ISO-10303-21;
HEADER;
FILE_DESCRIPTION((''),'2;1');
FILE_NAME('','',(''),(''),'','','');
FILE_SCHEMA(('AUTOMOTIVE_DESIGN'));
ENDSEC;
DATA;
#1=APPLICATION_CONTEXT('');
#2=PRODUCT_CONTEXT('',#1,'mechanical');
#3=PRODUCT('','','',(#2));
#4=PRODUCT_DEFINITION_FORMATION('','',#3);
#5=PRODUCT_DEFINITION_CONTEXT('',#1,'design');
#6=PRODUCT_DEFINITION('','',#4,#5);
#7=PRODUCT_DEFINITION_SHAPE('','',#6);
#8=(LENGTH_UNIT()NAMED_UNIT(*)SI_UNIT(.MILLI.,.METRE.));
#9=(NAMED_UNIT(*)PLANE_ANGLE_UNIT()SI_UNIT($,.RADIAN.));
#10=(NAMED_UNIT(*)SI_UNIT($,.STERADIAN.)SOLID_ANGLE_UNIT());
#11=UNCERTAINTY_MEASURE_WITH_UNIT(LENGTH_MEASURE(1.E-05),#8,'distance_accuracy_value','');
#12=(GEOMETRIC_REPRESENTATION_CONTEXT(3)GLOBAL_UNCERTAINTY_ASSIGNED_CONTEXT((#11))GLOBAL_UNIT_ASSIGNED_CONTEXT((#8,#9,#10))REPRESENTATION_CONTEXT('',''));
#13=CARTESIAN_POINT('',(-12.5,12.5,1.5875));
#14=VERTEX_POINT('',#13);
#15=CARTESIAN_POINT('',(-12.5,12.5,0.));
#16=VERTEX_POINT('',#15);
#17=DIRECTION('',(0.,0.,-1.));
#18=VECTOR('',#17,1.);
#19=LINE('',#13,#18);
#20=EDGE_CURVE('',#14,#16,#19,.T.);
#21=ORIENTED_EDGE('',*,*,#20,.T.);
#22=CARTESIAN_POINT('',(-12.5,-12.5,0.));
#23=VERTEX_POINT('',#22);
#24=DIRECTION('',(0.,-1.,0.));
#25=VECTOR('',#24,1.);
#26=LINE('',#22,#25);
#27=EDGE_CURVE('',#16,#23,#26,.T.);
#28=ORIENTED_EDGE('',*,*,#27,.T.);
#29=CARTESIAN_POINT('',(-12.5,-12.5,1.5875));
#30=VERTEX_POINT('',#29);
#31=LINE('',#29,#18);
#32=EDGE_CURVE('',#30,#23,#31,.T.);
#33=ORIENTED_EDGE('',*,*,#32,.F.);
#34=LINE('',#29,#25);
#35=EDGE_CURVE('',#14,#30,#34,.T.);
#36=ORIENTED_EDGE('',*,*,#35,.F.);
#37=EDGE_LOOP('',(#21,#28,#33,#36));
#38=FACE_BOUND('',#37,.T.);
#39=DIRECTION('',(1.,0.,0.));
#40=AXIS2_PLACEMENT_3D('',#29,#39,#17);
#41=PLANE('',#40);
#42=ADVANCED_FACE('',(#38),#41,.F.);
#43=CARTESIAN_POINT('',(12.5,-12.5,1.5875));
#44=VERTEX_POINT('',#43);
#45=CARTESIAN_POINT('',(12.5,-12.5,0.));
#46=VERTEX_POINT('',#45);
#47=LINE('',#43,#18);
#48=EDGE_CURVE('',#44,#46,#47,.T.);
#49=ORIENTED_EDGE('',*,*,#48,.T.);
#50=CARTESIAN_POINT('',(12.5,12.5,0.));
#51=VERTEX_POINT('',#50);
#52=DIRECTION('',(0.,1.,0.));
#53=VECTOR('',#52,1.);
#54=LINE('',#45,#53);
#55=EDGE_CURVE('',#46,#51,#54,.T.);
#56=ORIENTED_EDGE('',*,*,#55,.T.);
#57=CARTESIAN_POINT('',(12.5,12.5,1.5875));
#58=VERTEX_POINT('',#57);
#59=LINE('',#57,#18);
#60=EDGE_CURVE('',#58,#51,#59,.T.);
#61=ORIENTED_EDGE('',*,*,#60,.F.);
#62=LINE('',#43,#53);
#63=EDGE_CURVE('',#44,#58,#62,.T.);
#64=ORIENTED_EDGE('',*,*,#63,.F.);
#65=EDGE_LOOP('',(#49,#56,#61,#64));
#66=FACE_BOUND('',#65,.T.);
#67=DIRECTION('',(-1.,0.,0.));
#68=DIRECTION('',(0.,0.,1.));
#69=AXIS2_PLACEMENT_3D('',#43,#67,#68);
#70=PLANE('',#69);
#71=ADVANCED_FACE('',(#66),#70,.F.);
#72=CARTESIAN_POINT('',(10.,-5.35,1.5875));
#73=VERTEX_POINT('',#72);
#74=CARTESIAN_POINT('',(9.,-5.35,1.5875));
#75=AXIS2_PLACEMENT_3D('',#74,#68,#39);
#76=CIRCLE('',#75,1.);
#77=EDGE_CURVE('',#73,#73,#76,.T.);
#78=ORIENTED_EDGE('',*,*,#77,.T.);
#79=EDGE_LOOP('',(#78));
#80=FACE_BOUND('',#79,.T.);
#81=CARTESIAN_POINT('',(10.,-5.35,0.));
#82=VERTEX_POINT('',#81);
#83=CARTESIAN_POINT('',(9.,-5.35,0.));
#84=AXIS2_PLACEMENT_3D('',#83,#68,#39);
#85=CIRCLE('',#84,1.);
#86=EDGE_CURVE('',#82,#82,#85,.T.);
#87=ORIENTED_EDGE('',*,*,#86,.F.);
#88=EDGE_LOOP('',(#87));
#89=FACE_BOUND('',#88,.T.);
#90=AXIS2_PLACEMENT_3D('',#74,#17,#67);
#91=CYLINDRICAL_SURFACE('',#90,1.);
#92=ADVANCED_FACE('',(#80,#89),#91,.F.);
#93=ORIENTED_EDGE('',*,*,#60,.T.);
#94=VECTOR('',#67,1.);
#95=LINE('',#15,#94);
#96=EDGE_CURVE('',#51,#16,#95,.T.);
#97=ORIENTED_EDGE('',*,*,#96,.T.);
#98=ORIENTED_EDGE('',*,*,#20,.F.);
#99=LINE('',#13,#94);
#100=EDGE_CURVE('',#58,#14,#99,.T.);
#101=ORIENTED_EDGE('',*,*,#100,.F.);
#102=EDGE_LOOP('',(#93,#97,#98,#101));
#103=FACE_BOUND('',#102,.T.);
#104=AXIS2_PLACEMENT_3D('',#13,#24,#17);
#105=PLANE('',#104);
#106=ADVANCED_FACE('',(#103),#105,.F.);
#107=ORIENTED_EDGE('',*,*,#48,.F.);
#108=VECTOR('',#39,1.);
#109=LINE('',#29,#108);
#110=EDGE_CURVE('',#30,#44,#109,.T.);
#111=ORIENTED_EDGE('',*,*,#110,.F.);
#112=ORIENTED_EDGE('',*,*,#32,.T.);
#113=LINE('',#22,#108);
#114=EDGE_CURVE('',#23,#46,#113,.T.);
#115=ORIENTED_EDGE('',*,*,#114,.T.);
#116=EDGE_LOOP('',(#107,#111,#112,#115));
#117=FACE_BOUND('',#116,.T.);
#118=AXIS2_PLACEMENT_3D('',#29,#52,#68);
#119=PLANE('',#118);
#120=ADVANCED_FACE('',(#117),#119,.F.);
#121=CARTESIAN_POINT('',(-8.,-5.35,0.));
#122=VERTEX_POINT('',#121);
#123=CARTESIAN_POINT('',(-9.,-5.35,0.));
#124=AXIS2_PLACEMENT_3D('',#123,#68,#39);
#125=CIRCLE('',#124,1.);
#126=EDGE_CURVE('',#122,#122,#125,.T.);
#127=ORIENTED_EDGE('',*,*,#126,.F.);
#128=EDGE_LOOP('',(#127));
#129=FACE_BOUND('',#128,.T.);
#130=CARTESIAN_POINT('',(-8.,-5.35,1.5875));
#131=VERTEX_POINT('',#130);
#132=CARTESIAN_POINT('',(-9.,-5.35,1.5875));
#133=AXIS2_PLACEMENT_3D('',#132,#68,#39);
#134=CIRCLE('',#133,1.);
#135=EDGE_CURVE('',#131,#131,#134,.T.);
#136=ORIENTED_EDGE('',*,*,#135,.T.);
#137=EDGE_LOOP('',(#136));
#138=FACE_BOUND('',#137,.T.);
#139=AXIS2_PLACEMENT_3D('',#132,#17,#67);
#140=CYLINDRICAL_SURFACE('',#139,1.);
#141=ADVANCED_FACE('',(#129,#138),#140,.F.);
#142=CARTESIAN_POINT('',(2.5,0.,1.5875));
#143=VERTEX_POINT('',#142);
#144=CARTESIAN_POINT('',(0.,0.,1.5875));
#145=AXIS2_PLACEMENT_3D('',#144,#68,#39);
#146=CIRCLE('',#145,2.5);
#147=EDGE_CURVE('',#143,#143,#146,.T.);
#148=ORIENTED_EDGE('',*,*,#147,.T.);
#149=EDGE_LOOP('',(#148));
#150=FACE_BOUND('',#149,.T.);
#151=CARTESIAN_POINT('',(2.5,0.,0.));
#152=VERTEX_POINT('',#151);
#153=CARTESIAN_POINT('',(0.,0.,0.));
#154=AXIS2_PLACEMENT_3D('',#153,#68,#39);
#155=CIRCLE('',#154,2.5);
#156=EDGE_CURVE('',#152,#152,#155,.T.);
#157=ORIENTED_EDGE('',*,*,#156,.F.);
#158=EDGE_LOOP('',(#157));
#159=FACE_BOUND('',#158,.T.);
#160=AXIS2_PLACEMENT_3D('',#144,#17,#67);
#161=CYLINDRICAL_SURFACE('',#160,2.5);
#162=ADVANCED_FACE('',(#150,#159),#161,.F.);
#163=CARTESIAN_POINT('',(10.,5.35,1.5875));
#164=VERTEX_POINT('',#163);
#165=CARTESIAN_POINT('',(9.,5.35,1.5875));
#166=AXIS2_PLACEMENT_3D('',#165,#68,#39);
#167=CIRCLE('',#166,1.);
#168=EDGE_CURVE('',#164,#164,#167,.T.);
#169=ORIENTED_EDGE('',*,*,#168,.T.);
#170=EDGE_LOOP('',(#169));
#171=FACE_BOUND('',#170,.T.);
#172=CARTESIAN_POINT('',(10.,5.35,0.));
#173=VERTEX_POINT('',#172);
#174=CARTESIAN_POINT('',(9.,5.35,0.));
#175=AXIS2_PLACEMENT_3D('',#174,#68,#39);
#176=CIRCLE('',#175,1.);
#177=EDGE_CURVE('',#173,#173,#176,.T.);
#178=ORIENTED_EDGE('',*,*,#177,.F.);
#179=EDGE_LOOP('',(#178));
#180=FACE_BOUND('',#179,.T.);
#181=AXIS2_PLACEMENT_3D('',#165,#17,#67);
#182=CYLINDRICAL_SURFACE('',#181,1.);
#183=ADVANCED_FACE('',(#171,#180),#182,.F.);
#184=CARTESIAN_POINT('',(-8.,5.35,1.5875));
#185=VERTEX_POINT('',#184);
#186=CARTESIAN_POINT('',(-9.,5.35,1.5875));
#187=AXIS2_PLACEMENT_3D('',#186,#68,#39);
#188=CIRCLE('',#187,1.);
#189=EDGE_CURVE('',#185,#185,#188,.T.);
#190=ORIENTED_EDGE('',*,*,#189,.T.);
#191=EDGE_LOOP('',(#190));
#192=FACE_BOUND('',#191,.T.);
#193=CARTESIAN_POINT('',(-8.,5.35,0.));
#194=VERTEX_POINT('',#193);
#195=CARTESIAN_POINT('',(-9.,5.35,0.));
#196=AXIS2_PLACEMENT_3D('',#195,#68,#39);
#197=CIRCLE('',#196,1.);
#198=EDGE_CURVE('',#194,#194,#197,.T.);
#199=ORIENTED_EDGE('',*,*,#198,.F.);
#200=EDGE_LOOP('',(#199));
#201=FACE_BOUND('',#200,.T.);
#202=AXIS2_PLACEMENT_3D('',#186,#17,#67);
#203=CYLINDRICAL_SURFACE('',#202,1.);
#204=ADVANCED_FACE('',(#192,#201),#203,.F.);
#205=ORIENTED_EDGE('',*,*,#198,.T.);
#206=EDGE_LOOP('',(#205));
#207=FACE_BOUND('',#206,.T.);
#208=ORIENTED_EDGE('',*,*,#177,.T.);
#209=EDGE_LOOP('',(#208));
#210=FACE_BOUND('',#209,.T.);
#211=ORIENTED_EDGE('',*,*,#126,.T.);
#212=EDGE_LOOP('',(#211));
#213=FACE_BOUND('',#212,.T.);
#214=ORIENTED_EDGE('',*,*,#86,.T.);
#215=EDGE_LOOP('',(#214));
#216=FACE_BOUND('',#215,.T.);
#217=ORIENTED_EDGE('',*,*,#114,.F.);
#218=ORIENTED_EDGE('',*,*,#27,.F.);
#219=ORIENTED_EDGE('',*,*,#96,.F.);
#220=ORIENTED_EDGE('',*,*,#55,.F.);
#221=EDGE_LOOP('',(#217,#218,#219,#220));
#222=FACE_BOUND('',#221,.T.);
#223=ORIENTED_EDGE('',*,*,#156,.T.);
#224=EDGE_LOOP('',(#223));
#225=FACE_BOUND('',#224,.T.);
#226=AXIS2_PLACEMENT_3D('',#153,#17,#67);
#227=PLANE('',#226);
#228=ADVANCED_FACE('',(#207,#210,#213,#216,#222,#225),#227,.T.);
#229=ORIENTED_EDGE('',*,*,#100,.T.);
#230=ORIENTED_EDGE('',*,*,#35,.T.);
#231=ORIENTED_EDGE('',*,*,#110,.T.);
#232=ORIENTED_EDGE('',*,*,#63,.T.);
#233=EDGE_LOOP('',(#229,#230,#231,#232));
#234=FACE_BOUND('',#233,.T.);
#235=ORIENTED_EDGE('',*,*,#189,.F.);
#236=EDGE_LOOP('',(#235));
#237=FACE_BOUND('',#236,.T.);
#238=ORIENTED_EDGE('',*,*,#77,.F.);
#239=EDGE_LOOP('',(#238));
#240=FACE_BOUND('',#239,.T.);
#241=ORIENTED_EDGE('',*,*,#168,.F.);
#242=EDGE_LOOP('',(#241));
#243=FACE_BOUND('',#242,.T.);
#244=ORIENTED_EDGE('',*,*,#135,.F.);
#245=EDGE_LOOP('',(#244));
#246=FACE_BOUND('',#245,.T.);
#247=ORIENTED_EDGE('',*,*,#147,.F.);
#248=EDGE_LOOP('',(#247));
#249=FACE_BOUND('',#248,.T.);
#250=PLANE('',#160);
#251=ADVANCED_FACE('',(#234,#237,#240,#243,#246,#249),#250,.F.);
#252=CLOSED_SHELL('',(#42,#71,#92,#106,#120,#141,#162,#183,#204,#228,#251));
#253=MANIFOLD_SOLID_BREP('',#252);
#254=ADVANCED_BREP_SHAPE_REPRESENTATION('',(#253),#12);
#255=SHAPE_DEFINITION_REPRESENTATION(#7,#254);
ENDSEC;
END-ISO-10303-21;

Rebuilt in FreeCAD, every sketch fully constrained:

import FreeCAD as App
import Part
import Sketcher
from FreeCAD import Vector

doc = App.newDocument("Part")
body = doc.addObject("PartDesign::Body", "Body")

# Sketch on XY plane
sketch1 = body.newObject("Sketcher::SketchObject", "Sketch")
sketch1.AttachmentSupport = (doc.getObject("XY_Plane"), [""])
sketch1.MapMode = "FlatFace"
sketch1.addGeometry(Part.LineSegment(Vector(-12.5, 12.5, 0), Vector(-12.5, -12.5, 0)), False)
sketch1.addGeometry(Part.LineSegment(Vector(-12.5, -12.5, 0), Vector(12.5, -12.5, 0)), False)
sketch1.addGeometry(Part.LineSegment(Vector(12.5, -12.5, 0), Vector(12.5, 12.5, 0)), False)
sketch1.addGeometry(Part.LineSegment(Vector(12.5, 12.5, 0), Vector(-12.5, 12.5, 0)), False)
sketch1.addGeometry(Part.Circle(Vector(-9, -5.35, 0), Vector(0, 0, 1), 1), False)
sketch1.addGeometry(Part.Circle(Vector(9, -5.35, 0), Vector(0, 0, 1), 1), False)
sketch1.addGeometry(Part.Circle(Vector(0, 0, 0), Vector(0, 0, 1), 2.5), False)
sketch1.addGeometry(Part.Circle(Vector(-9, 5.35, 0), Vector(0, 0, 1), 1), False)
sketch1.addGeometry(Part.Circle(Vector(9, 5.35, 0), Vector(0, 0, 1), 1), False)
sketch1.addConstraint(Sketcher.Constraint("Coincident", 0, 2, 1, 1))
sketch1.addConstraint(Sketcher.Constraint("Coincident", 1, 2, 2, 1))
sketch1.addConstraint(Sketcher.Constraint("Coincident", 2, 2, 3, 1))
sketch1.addConstraint(Sketcher.Constraint("Coincident", 3, 2, 0, 1))
sketch1.addConstraint(Sketcher.Constraint("Vertical", 0))
sketch1.addConstraint(Sketcher.Constraint("Horizontal", 1))
sketch1.addConstraint(Sketcher.Constraint("Vertical", 2))
sketch1.addConstraint(Sketcher.Constraint("Horizontal", 3))
sketch1.addConstraint(Sketcher.Constraint("Coincident", 6, 3, -1, 1))
sketch1.addConstraint(Sketcher.Constraint("Equal", 4, 5))
sketch1.addConstraint(Sketcher.Constraint("Equal", 5, 7))
sketch1.addConstraint(Sketcher.Constraint("Equal", 7, 8))
sketch1.addConstraint(Sketcher.Constraint("Symmetric", 5, 3, 7, 3, -1, 1))
sketch1.addConstraint(Sketcher.Constraint("Symmetric", 4, 3, 8, 3, -1, 1))
sketch1.addConstraint(Sketcher.Constraint("Symmetric", 0, 2, 2, 2, -1, 1))
sketch1.addConstraint(Sketcher.Constraint("Symmetric", 4, 3, 5, 3, -2))
sketch1.addConstraint(Sketcher.Constraint("Equal", 3, 0))
sketch1.addConstraint(Sketcher.Constraint("Diameter", 4, 2.0))
sketch1.addConstraint(Sketcher.Constraint("Diameter", 6, 5.0))
sketch1.addConstraint(Sketcher.Constraint("DistanceX", 1, 1, 1, 2, 25.0))
sketch1.addConstraint(Sketcher.Constraint("DistanceX", 4, 3, -1, 1, 9.0))
sketch1.addConstraint(Sketcher.Constraint("DistanceY", 4, 3, 7, 3, 10.7))
pad1 = body.newObject("PartDesign::Pad", "Pad")
pad1.Profile = sketch1
pad1.Length = 1.5875

doc.recompute()
